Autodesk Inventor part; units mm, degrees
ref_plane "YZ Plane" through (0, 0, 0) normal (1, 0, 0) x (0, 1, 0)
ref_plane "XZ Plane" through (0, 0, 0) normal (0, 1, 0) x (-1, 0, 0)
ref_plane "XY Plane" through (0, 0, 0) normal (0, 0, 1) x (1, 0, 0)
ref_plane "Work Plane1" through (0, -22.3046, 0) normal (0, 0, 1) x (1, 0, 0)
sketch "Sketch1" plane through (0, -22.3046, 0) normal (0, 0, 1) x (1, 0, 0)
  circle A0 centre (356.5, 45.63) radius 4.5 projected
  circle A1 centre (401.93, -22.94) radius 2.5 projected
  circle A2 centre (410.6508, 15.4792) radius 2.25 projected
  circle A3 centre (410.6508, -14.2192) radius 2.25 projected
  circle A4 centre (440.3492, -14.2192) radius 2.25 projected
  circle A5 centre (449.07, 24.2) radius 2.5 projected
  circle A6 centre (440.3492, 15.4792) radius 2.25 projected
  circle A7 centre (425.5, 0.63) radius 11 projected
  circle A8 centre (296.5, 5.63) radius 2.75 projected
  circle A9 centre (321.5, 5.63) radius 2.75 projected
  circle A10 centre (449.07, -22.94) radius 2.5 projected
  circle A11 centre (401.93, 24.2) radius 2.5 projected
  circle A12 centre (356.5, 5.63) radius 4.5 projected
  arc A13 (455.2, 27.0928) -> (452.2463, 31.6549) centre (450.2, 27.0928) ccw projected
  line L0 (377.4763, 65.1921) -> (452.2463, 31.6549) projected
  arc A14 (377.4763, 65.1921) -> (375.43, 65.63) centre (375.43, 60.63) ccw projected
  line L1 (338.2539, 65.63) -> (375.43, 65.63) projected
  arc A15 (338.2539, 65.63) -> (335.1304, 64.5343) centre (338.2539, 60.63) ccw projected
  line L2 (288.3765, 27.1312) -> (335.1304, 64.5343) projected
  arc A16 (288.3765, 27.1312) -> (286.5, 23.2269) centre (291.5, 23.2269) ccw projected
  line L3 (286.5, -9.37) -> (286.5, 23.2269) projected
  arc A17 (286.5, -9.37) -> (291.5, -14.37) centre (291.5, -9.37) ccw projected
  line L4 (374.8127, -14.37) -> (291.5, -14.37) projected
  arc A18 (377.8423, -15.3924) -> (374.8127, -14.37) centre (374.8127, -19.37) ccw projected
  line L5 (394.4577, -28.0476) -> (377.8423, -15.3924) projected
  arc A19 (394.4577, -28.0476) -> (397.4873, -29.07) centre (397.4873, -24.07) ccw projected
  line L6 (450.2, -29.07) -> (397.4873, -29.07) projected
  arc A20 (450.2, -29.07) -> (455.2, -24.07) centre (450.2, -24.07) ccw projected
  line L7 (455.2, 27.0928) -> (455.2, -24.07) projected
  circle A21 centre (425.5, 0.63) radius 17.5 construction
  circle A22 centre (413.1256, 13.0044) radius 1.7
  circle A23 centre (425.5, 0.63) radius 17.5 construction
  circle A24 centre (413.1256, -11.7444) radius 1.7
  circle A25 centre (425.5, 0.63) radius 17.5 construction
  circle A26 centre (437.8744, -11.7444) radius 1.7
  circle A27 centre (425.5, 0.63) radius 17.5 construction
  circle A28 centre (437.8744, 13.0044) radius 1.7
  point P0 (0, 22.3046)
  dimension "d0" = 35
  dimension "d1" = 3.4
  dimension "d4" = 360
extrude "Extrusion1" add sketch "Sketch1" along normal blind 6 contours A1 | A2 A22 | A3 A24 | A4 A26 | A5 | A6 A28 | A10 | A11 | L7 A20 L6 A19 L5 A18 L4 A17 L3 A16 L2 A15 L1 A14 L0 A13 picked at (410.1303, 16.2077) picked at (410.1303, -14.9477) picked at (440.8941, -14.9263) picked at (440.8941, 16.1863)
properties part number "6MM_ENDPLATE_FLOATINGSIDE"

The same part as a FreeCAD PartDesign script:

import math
import FreeCAD as App
import Part
import Sketcher

V = App.Vector
Q = App.Units.Quantity

doc = App.newDocument("Part")
body = doc.addObject("PartDesign::Body", "Body")

sketch1 = doc.addObject("Sketcher::SketchObject", "Sketch")
body.addObject(sketch1)
sketch1.AttachmentSupport = (doc.XY_Plane, [""])
sketch1.MapMode = "FlatFace"
sketch1.addGeometry([
    Part.LineSegment(V(455.2, -46.3746, 0), V(455.2, 4.7882, 0)),
    Part.ArcOfCircle(Part.Circle(V(450.2, 4.7882, 0), V(0, 0, 1), 5), math.radians(0), math.radians(65.841694)),
    Part.LineSegment(V(452.2463, 9.3503, 0), V(377.4763, 42.8875, 0)),
    Part.ArcOfCircle(Part.Circle(V(375.43, 38.3254, 0), V(0, 0, 1), 5.00001), math.radians(65.841694), math.radians(90)),
    Part.LineSegment(V(375.43, 43.3254, 0), V(338.2539, 43.3254, 0)),
    Part.ArcOfCircle(Part.Circle(V(338.2539, 38.3254, 0), V(0, 0, 1), 5), math.radians(90), math.radians(128.660345)),
    Part.LineSegment(V(335.1304, 42.2297, 0), V(288.3765, 4.8266, 0)),
    Part.ArcOfCircle(Part.Circle(V(291.5, 0.9223, 0), V(0, 0, 1), 4.999981), math.radians(128.660345), math.radians(180)),
    Part.LineSegment(V(286.5, 0.9223, 0), V(286.5, -31.6746, 0)),
    Part.ArcOfCircle(Part.Circle(V(291.5, -31.6746, 0), V(0, 0, 1), 5), math.radians(180), math.radians(270)),
    Part.LineSegment(V(291.5, -36.6746, 0), V(374.8127, -36.6746, 0)),
    Part.ArcOfCircle(Part.Circle(V(374.8127, -41.6746, 0), V(0, 0, 1), 4.999978), math.radians(52.704733), math.radians(90)),
    Part.LineSegment(V(377.8423, -37.697, 0), V(394.4577, -50.3522, 0)),
    Part.ArcOfCircle(Part.Circle(V(397.4873, -46.3746, 0), V(0, 0, 1), 4.999978), math.radians(-127.295267), math.radians(-90)),
    Part.LineSegment(V(397.4873, -51.3746, 0), V(450.2, -51.3746, 0)),
    Part.ArcOfCircle(Part.Circle(V(450.2, -46.3746, 0), V(0, 0, 1), 5), math.radians(-90), math.radians(0)),
    Part.Circle(V(296.5, -16.6746, 0), V(0, 0, 1), 2.75),
    Part.Circle(V(321.5, -16.6746, 0), V(0, 0, 1), 2.75),
    Part.Circle(V(356.5, -16.6746, 0), V(0, 0, 1), 4.5),
    Part.Circle(V(413.1256, -34.049, 0), V(0, 0, 1), 1.7),
    Part.Circle(V(437.8744, -34.049, 0), V(0, 0, 1), 1.7),
    Part.Circle(V(413.1256, -9.3002, 0), V(0, 0, 1), 1.7),
    Part.Circle(V(425.5, -21.6746, 0), V(0, 0, 1), 11),
    Part.Circle(V(437.8744, -9.3002, 0), V(0, 0, 1), 1.7),
    Part.Circle(V(356.5, 23.3254, 0), V(0, 0, 1), 4.5),
], False)
sketch1.addConstraint([
    Sketcher.Constraint("Tangent", 0, 2, 1, 1),
    Sketcher.Constraint("Tangent", 1, 2, 2, 1),
    Sketcher.Constraint("Tangent", 2, 2, 3, 1),
    Sketcher.Constraint("Tangent", 3, 2, 4, 1),
    Sketcher.Constraint("Tangent", 4, 2, 5, 1),
    Sketcher.Constraint("Tangent", 5, 2, 6, 1),
    Sketcher.Constraint("Tangent", 6, 2, 7, 1),
    Sketcher.Constraint("Tangent", 7, 2, 8, 1),
    Sketcher.Constraint("Tangent", 8, 2, 9, 1),
    Sketcher.Constraint("Tangent", 9, 2, 10, 1),
    Sketcher.Constraint("Tangent", 10, 2, 11, 2),
    Sketcher.Constraint("Tangent", 11, 1, 12, 1),
    Sketcher.Constraint("Tangent", 12, 2, 13, 1),
    Sketcher.Constraint("Tangent", 13, 2, 14, 1),
    Sketcher.Constraint("Tangent", 14, 2, 15, 1),
    Sketcher.Constraint("Tangent", 15, 2, 0, 1),
    Sketcher.Constraint("Vertical", 0),
    Sketcher.Constraint("Horizontal", 4),
    Sketcher.Constraint("Vertical", 8),
    Sketcher.Constraint("Horizontal", 10),
    Sketcher.Constraint("Horizontal", 14),
    Sketcher.Constraint("Equal", 1, 3),
    Sketcher.Constraint("Equal", 3, 5),
    Sketcher.Constraint("Equal", 5, 7),
    Sketcher.Constraint("Equal", 7, 9),
    Sketcher.Constraint("Equal", 9, 11),
    Sketcher.Constraint("Equal", 11, 13),
    Sketcher.Constraint("Equal", 13, 15),
    Sketcher.Constraint("Equal", 16, 17),
    Sketcher.Constraint("Equal", 19, 20),
    Sketcher.Constraint("Equal", 20, 21),
    Sketcher.Constraint("Equal", 21, 23),
    Sketcher.Constraint("Equal", 18, 24),
    Sketcher.Constraint("Horizontal", 16, 3, 17, 3),
    Sketcher.Constraint("Horizontal", 17, 3, 18, 3),
    Sketcher.Constraint("Horizontal", 19, 3, 20, 3),
    Sketcher.Constraint("Horizontal", 21, 3, 23, 3),
    Sketcher.Constraint("Vertical", 19, 3, 21, 3),
    Sketcher.Constraint("Vertical", 20, 3, 23, 3),
    Sketcher.Constraint("Vertical", 18, 3, 24, 3),
    Sketcher.Constraint("Diameter", 19, Q("3.4 mm")),
    Sketcher.Constraint("Diameter", 18, Q("9 mm")),
    Sketcher.Constraint("Diameter", 22, Q("22 mm")),
    Sketcher.Constraint("Radius", 1, Q("5 mm")),
    Sketcher.Constraint("DistanceX", 17, 3, 18, 3, Q("35 mm")),
    Sketcher.Constraint("DistanceX", 7, 2, 17, 3, Q("35 mm")),
    Sketcher.Constraint("Diameter", 16, Q("5.5 mm")),
    Sketcher.Constraint("DistanceY", 9, 3, 5, 3, Q("70 mm")),
    Sketcher.Constraint("DistanceX", 9, 3, 16, 3, Q("5 mm")),
    Sketcher.Constraint("DistanceY", 9, 3, 16, 3, Q("15 mm")),
    Sketcher.Constraint("DistanceY", 24, 3, 5, 3, Q("15 mm")),
    Sketcher.Constraint("DistanceX", -1, 1, 1, 3, Q("450.2 mm")),
    Sketcher.Constraint("DistanceX", -1, 1, 7, 3, Q("291.5 mm")),
    Sketcher.Constraint("DistanceX", -1, 1, 22, 3, Q("425.5 mm")),
    Sketcher.Constraint("Angle", 6, Q("-141.3402 deg")),
    Sketcher.Constraint("DistanceY", 13, 3, 11, 3, Q("4.7 mm")),
    Sketcher.Constraint("DistanceY", 15, 3, 22, 3, Q("24.7 mm")),
    Sketcher.Constraint("DistanceX", 4, 2, 4, 1, Q("37.176 mm")),
    Sketcher.Constraint("DistanceY", 8, 2, 8, 1, Q("32.597 mm")),
    Sketcher.Constraint("Distance", 2, Q("81.947 mm")),
    Sketcher.Constraint("Distance", 12, Q("20.886 mm")),
    Sketcher.Constraint("DistanceX", 10, 1, 10, 2, Q("83.3127 mm")),
    Sketcher.Constraint("DistanceY", 19, 3, -1, 1, Q("34.049 mm")),
    Sketcher.Constraint("DistanceY", 11, 1, -1, 1, Q("37.697 mm")),
    Sketcher.Constraint("DistanceX", 11, 3, 19, 3, Q("38.313 mm")),
    Sketcher.Constraint("DistanceX", 13, 3, 20, 3, Q("40.387 mm")),
    Sketcher.Constraint("DistanceY", 21, 3, -1, 1, Q("9.3002 mm")),
])
pad1 = doc.addObject("PartDesign::Pad", "Pad")
body.addObject(pad1)
pad1.Profile = sketch1
pad1.Length = 6

doc.recompute()
